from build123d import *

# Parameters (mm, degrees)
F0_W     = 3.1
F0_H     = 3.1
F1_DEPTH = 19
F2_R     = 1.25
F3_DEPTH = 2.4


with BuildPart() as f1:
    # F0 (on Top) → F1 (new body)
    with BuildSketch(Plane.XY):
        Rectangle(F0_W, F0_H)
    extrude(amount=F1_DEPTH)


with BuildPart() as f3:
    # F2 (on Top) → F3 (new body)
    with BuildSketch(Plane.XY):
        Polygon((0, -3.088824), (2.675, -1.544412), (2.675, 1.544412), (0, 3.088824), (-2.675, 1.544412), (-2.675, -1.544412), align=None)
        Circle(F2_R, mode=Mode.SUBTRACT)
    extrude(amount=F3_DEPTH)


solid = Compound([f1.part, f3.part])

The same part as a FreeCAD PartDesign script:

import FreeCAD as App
import Part
import Sketcher
Q = App.Units.Quantity


def add_polygon(sketch, points):
    """Adds a closed chain of lines whose ends are joined by coincident constraints."""
    first, n = sketch.GeometryCount, len(points)
    for a, b in zip(points, points[1:] + points[:1]):
        sketch.addGeometry(Part.LineSegment(App.Vector(*a, 0), App.Vector(*b, 0)), False)
    for i in range(n):
        sketch.addConstraint(Sketcher.Constraint("Coincident", first + i, 2, first + (i + 1) % n, 1))

doc = App.newDocument("Part")
params = doc.addObject("Spreadsheet::Sheet", "Params")
for row, (alias, value) in enumerate([
    ("sketch1_width", "3.1 mm"),
    ("pad1_length", "19 mm"),
    ("sketch2_diameter", "2.5 mm"),
    ("pad2_length", "2.4 mm"),
], start=1):
    params.set(f"A{row}", alias)
    params.set(f"B{row}", "=" + value)
    params.setAlias(f"B{row}", alias)

body = doc.addObject("PartDesign::Body", "Body")

sketch1 = doc.addObject("Sketcher::SketchObject", "Sketch")
body.addObject(sketch1)
sketch1.AttachmentSupport = (doc.XY_Plane, [""])
sketch1.MapMode = "FlatFace"
add_polygon(sketch1, [(-1.6, 1.6), (-1.6, -1.6), (1.6, -1.6), (1.6, 1.6)])
sketch1.addConstraint([
    Sketcher.Constraint("Vertical", 0),
    Sketcher.Constraint("Horizontal", 1),
    Sketcher.Constraint("Vertical", 2),
    Sketcher.Constraint("Horizontal", 3),
    Sketcher.Constraint("Symmetric", 0, 2, 2, 2, -1, 1),
    Sketcher.Constraint("Equal", 3, 0),
    Sketcher.Constraint("DistanceX", 1, 1, 1, 2, 3.1),
])
sketch1.setExpression("Constraints[10]", "Params.sketch1_width")
pad1 = doc.addObject("PartDesign::Pad", "Pad")
body.addObject(pad1)
pad1.Profile = sketch1
pad1.setExpression("Length", "Params.pad1_length")
body2 = doc.addObject("PartDesign::Body", "Body001")

sketch2 = doc.addObject("Sketcher::SketchObject", "Sketch001")
body2.addObject(sketch2)
sketch2.AttachmentSupport = (doc.getObject("XY_Plane001"), [""])
sketch2.MapMode = "FlatFace"
add_polygon(sketch2, [(0, -3.1), (2.7, -1.5), (2.7, 1.5), (0, 3.1), (-2.7, 1.5), (-2.7, -1.5)])
sketch2.addGeometry(Part.Circle(App.Vector(0, 0, 0), App.Vector(0, 0, 1), 1.2), False)
sketch2.addConstraint([
    Sketcher.Constraint("Vertical", 1),
    Sketcher.Constraint("Vertical", 4),
    Sketcher.Constraint("Coincident", 6, 3, -1, 1),
    Sketcher.Constraint("Symmetric", 0, 2, 3, 2, -1, 1),
    Sketcher.Constraint("Symmetric", 2, 2, 5, 2, -1, 1),
    Sketcher.Constraint("PointOnObject", 2, 2, -2),
    Sketcher.Constraint("Parallel", 2, 5),
    Sketcher.Constraint("Horizontal", 1, 2, 3, 2),
    Sketcher.Constraint("Diameter", 6, 2.5),
    Sketcher.Constraint("Angle", 0, Q("30 deg")),
    Sketcher.Constraint("DistanceX", 3, 2, 1, 2, 5.35),
    Sketcher.Constraint("DistanceY", 1, 1, 1, 2, 3.088824),
])
sketch2.setExpression("Constraints[14]", "Params.sketch2_diameter")
pad2 = doc.addObject("PartDesign::Pad", "Pad001")
body2.addObject(pad2)
pad2.Profile = sketch2
pad2.setExpression("Length", "Params.pad2_length")

doc.recompute()
